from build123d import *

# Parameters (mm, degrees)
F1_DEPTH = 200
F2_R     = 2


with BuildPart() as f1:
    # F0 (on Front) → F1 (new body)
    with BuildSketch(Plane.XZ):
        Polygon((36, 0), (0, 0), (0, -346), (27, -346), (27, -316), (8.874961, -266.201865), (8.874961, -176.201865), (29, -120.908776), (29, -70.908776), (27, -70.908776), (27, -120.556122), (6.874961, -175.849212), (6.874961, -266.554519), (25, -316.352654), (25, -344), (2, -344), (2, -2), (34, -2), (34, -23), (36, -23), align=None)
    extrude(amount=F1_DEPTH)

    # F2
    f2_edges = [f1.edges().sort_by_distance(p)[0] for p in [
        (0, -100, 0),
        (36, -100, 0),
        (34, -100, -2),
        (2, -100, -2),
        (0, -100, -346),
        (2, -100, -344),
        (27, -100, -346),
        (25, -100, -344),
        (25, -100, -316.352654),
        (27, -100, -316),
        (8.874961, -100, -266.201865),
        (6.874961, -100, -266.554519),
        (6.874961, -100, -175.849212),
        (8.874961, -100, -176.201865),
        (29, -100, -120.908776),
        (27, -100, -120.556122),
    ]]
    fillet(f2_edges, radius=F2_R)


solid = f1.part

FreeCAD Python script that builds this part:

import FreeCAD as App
import Part
import Sketcher
Q = App.Units.Quantity


def edges_at(feature, points):
    """Names of the edges that pass closest to the given points."""
    edges = feature.Shape.Edges
    near = lambda p: min(range(len(edges)), key=lambda i: edges[i].distToShape(Part.Vertex(*p))[0])
    return sorted({f"Edge{near(p) + 1}" for p in points})


def add_polygon(sketch, points):
    """Adds a closed chain of lines whose ends are joined by coincident constraints."""
    first, n = sketch.GeometryCount, len(points)
    for a, b in zip(points, points[1:] + points[:1]):
        sketch.addGeometry(Part.LineSegment(App.Vector(*a, 0), App.Vector(*b, 0)), False)
    for i in range(n):
        sketch.addConstraint(Sketcher.Constraint("Coincident", first + i, 2, first + (i + 1) % n, 1))

doc = App.newDocument("Part")
body = doc.addObject("PartDesign::Body", "Body")

# Sketch on XZ plane
sketch1 = body.newObject("Sketcher::SketchObject", "Sketch")
sketch1.AttachmentSupport = (doc.getObject("XZ_Plane"), [""])
sketch1.MapMode = "FlatFace"
add_polygon(sketch1, [(36, 0), (0, 0), (0, -346), (27, -346), (27, -316), (8.9, -266.2), (8.9, -176.2), (29, -120.9), (29, -70.9), (27, -70.9), (27, -120.6), (6.9, -175.8), (6.9, -266.6), (25, -316.4), (25, -344), (2, -344), (2, -2), (34, -2), (34, -23), (36, -23)])  # lines 0-19
sketch1.addConstraint([
    Sketcher.Constraint("Horizontal", 0),
    Sketcher.Constraint("Vertical", 1),
    Sketcher.Constraint("Horizontal", 2),
    Sketcher.Constraint("Vertical", 3),
    Sketcher.Constraint("Vertical", 5),
    Sketcher.Constraint("Vertical", 7),
    Sketcher.Constraint("Horizontal", 8),
    Sketcher.Constraint("Vertical", 9),
    Sketcher.Constraint("Vertical", 11),
    Sketcher.Constraint("Vertical", 13),
    Sketcher.Constraint("Horizontal", 14),
    Sketcher.Constraint("Vertical", 15),
    Sketcher.Constraint("Horizontal", 16),
    Sketcher.Constraint("Vertical", 17),
    Sketcher.Constraint("Horizontal", 18),
    Sketcher.Constraint("Vertical", 19),
    Sketcher.Constraint("Coincident", 0, 2, -1, 1),
    Sketcher.Constraint("Parallel", 6, 10),
    Sketcher.Constraint("Parallel", 4, 12),
    Sketcher.Constraint("Vertical", 3, 2, 8, 2),
    Sketcher.Constraint("Equal", 8, 18),
    Sketcher.Constraint("Equal", 14, 19),
    Sketcher.Constraint("Equal", 6, 10),
    Sketcher.Constraint("Equal", 4, 12),
    Sketcher.Constraint("DistanceX", 0, 2, 0, 1, 36.0),
    Sketcher.Constraint("DistanceX", 2, 1, 2, 2, 27.0),
    Sketcher.Constraint("DistanceX", 8, 2, 8, 1, 2.0),
    Sketcher.Constraint("DistanceX", 14, 2, 14, 1, 23.0),
    Sketcher.Constraint("DistanceY", 1, 2, 1, 1, 346.0),
    Sketcher.Constraint("DistanceY", 3, 1, 3, 2, 30.0),
    Sketcher.Constraint("DistanceY", 5, 1, 5, 2, 90.0),
    Sketcher.Constraint("DistanceY", 7, 1, 7, 2, 50.0),
    Sketcher.Constraint("DistanceY", 15, 1, 15, 2, 342.0),
    Sketcher.Constraint("DistanceY", 17, 2, 17, 1, 21.0),
    Sketcher.Constraint("Angle", 4, Q("110 deg")),
    Sketcher.Constraint("Angle", 6, Q("70 deg")),
    Sketcher.Constraint("Distance", 4, 52.994068),
    Sketcher.Constraint("DistanceY", 9, 2, 9, 1, 49.647346),
    Sketcher.Constraint("DistanceY", 11, 2, 11, 1, 90.705307),
])
pad1 = body.newObject("PartDesign::Pad", "Pad")
pad1.Profile = sketch1
pad1.Length = 200
doc.recompute()

fillet = body.newObject("PartDesign::Fillet", "Fillet")
fillet.Base = (pad1, edges_at(pad1, [
    (0, -100, 0),
    (36, -100, 0),
    (34, -100, -2),
    (2, -100, -2),
    (0, -100, -346),
    (2, -100, -344),
    (27, -100, -346),
    (25, -100, -344),
    (25, -100, -316.353),
    (27, -100, -316),
    (8.875, -100, -266.202),
    (6.875, -100, -266.555),
    (6.875, -100, -175.849),
    (8.875, -100, -176.202),
    (29, -100, -120.909),
    (27, -100, -120.556),
]))
fillet.Radius = 2

doc.recompute()
